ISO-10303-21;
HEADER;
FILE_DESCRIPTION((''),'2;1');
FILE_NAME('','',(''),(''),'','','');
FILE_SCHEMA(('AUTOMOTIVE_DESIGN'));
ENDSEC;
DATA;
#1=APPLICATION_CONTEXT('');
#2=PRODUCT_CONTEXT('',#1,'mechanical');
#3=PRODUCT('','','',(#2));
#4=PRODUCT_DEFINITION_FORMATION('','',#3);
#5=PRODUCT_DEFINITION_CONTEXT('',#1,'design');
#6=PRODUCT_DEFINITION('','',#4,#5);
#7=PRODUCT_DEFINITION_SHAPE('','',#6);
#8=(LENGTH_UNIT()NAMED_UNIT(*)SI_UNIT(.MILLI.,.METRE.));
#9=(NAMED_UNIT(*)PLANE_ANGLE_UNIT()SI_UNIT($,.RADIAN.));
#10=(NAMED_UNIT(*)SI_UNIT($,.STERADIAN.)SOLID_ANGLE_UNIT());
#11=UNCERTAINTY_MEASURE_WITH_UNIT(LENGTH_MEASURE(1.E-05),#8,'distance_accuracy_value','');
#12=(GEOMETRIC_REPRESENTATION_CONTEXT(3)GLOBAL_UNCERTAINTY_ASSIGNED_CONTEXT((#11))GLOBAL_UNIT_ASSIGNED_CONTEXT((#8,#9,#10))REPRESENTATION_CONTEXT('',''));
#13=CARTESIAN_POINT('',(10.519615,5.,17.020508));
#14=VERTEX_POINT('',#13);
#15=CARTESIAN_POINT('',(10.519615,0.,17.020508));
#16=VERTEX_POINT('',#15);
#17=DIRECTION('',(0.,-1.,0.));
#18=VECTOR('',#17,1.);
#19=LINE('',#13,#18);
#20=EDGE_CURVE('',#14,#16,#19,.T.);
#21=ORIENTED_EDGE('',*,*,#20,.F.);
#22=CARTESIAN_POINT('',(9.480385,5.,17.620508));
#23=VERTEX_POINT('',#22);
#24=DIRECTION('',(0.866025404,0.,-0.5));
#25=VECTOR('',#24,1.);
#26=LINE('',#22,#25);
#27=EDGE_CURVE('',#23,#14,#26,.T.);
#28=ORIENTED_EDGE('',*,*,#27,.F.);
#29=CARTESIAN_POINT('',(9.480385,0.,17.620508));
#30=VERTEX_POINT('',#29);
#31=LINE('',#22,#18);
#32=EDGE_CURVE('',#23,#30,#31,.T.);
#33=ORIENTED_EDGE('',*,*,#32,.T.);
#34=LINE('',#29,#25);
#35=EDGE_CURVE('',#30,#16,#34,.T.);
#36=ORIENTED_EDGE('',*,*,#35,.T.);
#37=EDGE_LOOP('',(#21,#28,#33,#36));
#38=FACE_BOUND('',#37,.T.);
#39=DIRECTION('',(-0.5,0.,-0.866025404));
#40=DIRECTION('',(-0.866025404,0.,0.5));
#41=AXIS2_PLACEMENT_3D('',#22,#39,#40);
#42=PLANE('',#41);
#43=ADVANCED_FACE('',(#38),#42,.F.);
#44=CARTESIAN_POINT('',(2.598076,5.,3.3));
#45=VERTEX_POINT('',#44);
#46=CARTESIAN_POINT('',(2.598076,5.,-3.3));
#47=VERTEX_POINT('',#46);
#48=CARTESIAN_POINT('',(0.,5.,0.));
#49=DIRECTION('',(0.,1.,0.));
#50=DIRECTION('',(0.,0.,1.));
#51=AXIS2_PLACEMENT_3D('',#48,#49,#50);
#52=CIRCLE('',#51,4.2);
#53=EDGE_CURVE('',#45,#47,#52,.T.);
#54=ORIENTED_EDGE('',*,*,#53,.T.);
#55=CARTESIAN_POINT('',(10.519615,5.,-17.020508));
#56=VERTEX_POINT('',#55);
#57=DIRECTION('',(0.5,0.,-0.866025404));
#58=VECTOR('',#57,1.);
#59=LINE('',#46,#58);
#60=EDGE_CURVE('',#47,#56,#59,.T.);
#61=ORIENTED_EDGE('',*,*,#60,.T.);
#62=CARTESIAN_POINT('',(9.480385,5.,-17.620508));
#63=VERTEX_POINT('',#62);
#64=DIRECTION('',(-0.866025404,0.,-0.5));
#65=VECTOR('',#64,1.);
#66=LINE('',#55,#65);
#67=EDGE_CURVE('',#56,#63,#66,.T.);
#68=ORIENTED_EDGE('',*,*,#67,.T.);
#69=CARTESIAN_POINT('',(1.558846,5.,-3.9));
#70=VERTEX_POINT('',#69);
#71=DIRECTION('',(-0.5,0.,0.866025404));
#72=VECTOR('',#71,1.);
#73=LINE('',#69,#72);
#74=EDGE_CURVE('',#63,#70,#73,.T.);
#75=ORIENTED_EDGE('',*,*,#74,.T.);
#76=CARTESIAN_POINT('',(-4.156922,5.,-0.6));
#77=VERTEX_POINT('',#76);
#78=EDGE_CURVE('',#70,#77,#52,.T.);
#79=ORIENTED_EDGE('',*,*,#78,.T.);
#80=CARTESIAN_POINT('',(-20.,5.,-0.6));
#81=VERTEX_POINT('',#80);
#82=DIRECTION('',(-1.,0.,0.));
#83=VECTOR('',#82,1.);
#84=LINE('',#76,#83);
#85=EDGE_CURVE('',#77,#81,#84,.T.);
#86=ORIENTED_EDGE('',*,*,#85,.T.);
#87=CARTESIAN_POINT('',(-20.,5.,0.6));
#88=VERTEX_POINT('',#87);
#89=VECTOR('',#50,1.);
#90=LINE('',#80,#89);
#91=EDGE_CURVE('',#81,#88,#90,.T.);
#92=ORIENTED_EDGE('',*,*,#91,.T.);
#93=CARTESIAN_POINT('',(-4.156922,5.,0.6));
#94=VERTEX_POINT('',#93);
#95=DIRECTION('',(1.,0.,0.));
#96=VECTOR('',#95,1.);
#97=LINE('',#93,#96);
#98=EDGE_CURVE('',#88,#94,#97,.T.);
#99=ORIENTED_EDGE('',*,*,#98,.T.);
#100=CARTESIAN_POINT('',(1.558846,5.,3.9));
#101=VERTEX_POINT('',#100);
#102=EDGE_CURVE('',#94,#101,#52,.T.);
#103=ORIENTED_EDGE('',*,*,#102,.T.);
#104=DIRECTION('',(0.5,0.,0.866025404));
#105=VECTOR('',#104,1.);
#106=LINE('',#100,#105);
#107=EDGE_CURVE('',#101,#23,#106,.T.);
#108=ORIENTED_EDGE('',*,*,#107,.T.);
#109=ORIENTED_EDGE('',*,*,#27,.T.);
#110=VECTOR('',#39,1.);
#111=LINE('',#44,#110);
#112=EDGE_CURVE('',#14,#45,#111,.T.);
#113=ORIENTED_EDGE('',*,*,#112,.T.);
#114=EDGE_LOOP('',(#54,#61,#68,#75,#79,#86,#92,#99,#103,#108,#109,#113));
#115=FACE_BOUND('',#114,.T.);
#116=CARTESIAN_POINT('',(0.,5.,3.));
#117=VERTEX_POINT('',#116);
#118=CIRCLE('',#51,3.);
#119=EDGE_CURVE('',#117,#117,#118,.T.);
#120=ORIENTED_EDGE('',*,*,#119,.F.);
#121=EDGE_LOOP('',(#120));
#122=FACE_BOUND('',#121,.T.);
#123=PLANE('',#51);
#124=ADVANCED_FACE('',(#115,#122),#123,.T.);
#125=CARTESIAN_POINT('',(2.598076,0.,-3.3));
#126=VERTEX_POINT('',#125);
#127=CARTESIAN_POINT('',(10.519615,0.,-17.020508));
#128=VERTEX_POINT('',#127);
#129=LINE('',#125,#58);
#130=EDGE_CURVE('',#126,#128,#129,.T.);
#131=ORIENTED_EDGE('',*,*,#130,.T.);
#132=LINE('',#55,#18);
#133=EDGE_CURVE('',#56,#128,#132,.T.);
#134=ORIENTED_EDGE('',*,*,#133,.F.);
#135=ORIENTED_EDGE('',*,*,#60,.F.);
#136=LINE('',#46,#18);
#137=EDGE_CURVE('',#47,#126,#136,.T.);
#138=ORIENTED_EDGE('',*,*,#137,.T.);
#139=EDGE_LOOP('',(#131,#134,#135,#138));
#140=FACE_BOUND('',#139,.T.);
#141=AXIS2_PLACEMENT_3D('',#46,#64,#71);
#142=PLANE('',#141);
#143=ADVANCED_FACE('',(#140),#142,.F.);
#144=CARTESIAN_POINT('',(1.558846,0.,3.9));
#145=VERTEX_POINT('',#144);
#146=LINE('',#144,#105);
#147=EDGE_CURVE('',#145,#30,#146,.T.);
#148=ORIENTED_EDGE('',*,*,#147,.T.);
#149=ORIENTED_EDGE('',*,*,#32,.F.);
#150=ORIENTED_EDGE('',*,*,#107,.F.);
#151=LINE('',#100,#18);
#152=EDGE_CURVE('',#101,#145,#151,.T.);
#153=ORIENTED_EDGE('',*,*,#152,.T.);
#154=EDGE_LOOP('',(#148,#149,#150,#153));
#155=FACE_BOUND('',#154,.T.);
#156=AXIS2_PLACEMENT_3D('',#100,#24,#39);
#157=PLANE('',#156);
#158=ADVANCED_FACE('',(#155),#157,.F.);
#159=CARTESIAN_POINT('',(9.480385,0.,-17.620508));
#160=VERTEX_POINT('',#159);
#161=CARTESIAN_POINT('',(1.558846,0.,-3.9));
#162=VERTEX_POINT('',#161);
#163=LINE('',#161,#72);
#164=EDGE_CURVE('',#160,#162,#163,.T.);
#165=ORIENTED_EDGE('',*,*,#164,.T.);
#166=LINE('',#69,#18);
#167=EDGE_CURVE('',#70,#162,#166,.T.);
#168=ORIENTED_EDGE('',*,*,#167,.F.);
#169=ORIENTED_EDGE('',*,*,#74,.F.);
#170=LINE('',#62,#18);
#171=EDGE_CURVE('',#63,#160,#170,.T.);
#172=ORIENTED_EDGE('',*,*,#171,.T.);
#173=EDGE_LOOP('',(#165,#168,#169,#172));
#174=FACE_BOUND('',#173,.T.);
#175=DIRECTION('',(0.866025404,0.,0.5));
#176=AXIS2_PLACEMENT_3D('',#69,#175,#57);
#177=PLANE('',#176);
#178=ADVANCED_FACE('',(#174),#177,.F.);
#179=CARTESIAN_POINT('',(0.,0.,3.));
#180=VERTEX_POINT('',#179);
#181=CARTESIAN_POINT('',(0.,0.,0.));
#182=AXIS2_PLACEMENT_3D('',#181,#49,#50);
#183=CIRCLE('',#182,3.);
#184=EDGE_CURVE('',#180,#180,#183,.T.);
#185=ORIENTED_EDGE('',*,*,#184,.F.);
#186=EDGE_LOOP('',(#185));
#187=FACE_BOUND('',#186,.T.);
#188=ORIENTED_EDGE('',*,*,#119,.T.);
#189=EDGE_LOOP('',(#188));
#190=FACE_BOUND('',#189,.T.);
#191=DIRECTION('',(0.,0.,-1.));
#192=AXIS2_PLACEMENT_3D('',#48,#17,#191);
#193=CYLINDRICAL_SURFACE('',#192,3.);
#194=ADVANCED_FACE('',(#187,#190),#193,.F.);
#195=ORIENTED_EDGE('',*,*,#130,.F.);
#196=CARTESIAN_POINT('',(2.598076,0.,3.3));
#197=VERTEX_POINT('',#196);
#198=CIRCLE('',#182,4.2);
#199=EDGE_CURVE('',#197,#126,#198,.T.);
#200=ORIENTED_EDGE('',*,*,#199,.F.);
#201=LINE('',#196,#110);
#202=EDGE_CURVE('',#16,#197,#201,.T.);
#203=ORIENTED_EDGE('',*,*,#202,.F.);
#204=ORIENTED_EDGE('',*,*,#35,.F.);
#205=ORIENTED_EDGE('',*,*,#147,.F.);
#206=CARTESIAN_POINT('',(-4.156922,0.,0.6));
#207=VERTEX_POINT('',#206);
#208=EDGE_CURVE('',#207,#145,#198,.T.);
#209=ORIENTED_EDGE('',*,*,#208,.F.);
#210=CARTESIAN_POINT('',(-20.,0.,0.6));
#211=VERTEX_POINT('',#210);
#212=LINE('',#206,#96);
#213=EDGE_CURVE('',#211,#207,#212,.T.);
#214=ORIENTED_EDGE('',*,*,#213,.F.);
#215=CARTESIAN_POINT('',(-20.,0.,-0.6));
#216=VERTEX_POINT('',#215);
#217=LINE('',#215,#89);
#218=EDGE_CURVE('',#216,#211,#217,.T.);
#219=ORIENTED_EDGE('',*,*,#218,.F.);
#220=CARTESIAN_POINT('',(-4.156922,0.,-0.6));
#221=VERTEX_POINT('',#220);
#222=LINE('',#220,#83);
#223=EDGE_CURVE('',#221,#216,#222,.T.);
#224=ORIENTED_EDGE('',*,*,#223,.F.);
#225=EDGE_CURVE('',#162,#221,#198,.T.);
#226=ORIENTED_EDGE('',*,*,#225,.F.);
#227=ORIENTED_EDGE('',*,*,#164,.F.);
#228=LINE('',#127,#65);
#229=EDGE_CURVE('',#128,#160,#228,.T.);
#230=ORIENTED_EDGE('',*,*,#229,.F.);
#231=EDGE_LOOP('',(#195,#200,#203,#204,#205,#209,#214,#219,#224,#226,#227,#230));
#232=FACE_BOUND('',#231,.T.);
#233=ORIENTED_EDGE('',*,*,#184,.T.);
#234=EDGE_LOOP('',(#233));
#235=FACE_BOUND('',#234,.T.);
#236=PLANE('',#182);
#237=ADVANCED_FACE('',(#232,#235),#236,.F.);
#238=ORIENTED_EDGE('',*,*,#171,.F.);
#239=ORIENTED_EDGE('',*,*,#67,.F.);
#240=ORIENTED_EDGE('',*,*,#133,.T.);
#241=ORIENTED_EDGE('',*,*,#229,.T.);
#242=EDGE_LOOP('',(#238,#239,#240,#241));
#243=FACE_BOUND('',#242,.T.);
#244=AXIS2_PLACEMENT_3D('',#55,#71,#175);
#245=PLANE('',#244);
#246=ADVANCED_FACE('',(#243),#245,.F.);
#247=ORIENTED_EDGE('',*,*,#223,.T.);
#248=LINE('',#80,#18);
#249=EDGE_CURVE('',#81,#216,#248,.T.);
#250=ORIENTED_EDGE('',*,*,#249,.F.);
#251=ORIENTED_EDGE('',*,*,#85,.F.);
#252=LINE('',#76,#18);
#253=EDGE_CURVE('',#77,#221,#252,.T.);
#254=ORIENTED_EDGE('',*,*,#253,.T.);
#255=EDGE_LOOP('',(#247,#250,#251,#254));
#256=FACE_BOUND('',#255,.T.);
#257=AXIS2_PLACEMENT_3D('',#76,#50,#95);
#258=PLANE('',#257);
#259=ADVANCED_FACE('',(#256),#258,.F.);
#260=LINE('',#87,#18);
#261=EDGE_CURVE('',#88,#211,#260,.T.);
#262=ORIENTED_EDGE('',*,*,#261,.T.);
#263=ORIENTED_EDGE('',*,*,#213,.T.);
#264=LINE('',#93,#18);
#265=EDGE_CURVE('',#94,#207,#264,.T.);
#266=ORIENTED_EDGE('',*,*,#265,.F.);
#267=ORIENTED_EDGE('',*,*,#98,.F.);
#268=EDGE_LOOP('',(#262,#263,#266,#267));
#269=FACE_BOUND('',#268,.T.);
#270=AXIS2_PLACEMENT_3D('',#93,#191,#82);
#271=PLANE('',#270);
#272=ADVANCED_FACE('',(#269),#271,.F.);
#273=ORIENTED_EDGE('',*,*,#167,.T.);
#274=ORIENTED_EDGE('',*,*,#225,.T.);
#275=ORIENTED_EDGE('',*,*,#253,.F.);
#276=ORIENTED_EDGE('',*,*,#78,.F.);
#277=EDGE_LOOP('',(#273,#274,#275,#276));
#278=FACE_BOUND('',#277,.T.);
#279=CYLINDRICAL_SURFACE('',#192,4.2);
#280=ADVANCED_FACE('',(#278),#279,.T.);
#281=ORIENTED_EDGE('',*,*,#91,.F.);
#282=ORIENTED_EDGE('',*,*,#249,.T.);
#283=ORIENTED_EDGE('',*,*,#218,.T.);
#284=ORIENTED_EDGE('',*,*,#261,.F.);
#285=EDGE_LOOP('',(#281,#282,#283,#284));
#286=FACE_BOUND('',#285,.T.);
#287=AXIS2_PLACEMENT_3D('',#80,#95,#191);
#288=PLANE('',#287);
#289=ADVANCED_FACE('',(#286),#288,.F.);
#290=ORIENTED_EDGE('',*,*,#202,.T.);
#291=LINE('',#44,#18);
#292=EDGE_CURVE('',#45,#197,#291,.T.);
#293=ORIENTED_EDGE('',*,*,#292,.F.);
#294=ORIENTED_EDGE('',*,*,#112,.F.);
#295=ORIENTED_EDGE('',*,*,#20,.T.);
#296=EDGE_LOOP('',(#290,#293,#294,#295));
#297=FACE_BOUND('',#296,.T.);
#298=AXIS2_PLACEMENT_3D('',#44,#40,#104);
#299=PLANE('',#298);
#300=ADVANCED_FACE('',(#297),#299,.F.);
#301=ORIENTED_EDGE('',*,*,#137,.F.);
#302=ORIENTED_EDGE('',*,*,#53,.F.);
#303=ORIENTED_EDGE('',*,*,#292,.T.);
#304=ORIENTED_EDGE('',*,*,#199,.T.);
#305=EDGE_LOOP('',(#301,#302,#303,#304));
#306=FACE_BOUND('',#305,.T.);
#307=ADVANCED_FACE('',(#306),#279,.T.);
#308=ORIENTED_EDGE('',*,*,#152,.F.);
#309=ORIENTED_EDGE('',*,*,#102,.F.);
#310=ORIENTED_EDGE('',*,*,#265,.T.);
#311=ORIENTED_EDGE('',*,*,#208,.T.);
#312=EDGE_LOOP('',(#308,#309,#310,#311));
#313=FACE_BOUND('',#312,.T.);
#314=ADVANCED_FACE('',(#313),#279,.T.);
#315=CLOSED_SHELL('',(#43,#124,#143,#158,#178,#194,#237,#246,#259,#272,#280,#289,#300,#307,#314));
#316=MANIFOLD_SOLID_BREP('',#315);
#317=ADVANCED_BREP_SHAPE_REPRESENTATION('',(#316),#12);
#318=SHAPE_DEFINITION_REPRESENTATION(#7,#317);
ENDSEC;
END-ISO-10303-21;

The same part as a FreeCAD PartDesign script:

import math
import FreeCAD as App
import Part
import Sketcher
from FreeCAD import Vector
Q = App.Units.Quantity

doc = App.newDocument("Part")
body = doc.addObject("PartDesign::Body", "Body")

# Sketch on XZ plane
sketch1 = body.newObject("Sketcher::SketchObject", "Sketch")
sketch1.AttachmentSupport = (doc.getObject("XZ_Plane"), [""])
sketch1.MapMode = "FlatFace"
sketch1.addGeometry(Part.LineSegment(Vector(-20, 0.6, 0), Vector(-4.2, 0.6, 0)), False)
sketch1.addGeometry(Part.ArcOfCircle(Part.Circle(Vector(0, 0, 0), Vector(0, 0, 1), 4.2), math.radians(68), math.radians(172)), False)
sketch1.addGeometry(Part.LineSegment(Vector(1.6, 3.9, 0), Vector(9.5, 17.6, 0)), False)
sketch1.addGeometry(Part.LineSegment(Vector(9.5, 17.6, 0), Vector(10.5, 17, 0)), False)
sketch1.addGeometry(Part.LineSegment(Vector(10.5, 17, 0), Vector(2.6, 3.3, 0)), False)
sketch1.addGeometry(Part.ArcOfCircle(Part.Circle(Vector(0, 0, 0), Vector(0, 0, 1), 4.2), math.radians(-52), math.radians(52)), False)
sketch1.addGeometry(Part.LineSegment(Vector(2.6, -3.3, 0), Vector(10.5, -17, 0)), False)
sketch1.addGeometry(Part.LineSegment(Vector(10.5, -17, 0), Vector(9.5, -17.6, 0)), False)
sketch1.addGeometry(Part.LineSegment(Vector(9.5, -17.6, 0), Vector(1.6, -3.9, 0)), False)
sketch1.addGeometry(Part.ArcOfCircle(Part.Circle(Vector(0, 0, 0), Vector(0, 0, 1), 4.2), math.radians(-172), math.radians(-68)), False)
sketch1.addGeometry(Part.LineSegment(Vector(-4.2, -0.6, 0), Vector(-20, -0.6, 0)), False)
sketch1.addGeometry(Part.LineSegment(Vector(-20, -0.6, 0), Vector(-20, 0.6, 0)), False)
sketch1.addGeometry(Part.Circle(Vector(0, 0, 0), Vector(0, 0, 1), 3), False)
sketch1.addConstraint(Sketcher.Constraint("Coincident", 0, 2, 1, 2))
sketch1.addConstraint(Sketcher.Constraint("Coincident", 1, 1, 2, 1))
sketch1.addConstraint(Sketcher.Constraint("Coincident", 2, 2, 3, 1))
sketch1.addConstraint(Sketcher.Constraint("Coincident", 3, 2, 4, 1))
sketch1.addConstraint(Sketcher.Constraint("Coincident", 4, 2, 5, 2))
sketch1.addConstraint(Sketcher.Constraint("Coincident", 5, 1, 6, 1))
sketch1.addConstraint(Sketcher.Constraint("Coincident", 6, 2, 7, 1))
sketch1.addConstraint(Sketcher.Constraint("Coincident", 7, 2, 8, 1))
sketch1.addConstraint(Sketcher.Constraint("Coincident", 8, 2, 9, 2))
sketch1.addConstraint(Sketcher.Constraint("Coincident", 9, 1, 10, 1))
sketch1.addConstraint(Sketcher.Constraint("Coincident", 10, 2, 11, 1))
sketch1.addConstraint(Sketcher.Constraint("Coincident", 11, 2, 0, 1))
sketch1.addConstraint(Sketcher.Constraint("Horizontal", 0))
sketch1.addConstraint(Sketcher.Constraint("Horizontal", 10))
sketch1.addConstraint(Sketcher.Constraint("Vertical", 11))
sketch1.addConstraint(Sketcher.Constraint("Coincident", 1, 3, -1, 1))
sketch1.addConstraint(Sketcher.Constraint("Coincident", 5, 3, -1, 1))
sketch1.addConstraint(Sketcher.Constraint("Coincident", 9, 3, -1, 1))
sketch1.addConstraint(Sketcher.Constraint("Coincident", 12, 3, -1, 1))
sketch1.addConstraint(Sketcher.Constraint("Equal", 1, 5))
sketch1.addConstraint(Sketcher.Constraint("Equal", 5, 9))
sketch1.addConstraint(Sketcher.Constraint("Symmetric", 3, 2, 6, 2, -1))
sketch1.addConstraint(Sketcher.Constraint("Symmetric", 2, 2, 7, 2, -1))
sketch1.addConstraint(Sketcher.Constraint("Perpendicular", 2, 3))
sketch1.addConstraint(Sketcher.Constraint("Perpendicular", 3, 4))
sketch1.addConstraint(Sketcher.Constraint("Perpendicular", 6, 7))
sketch1.addConstraint(Sketcher.Constraint("Perpendicular", 7, 8))
sketch1.addConstraint(Sketcher.Constraint("Vertical", 0, 2, 9, 1))
sketch1.addConstraint(Sketcher.Constraint("Equal", 2, 4))
sketch1.addConstraint(Sketcher.Constraint("Diameter", 12, 6.0))
sketch1.addConstraint(Sketcher.Constraint("Radius", 1, 4.2))
sketch1.addConstraint(Sketcher.Constraint("Angle", 2, Q("60 deg")))
sketch1.addConstraint(Sketcher.Constraint("DistanceY", 11, 1, 11, 2, 1.2))
sketch1.addConstraint(Sketcher.Constraint("DistanceX", 10, 2, -1, 1, 20.0))
sketch1.addConstraint(Sketcher.Constraint("Distance", 3, 1.2))
sketch1.addConstraint(Sketcher.Constraint("Distance", 2, 15.843078))
pad1 = body.newObject("PartDesign::Pad", "Pad")
pad1.Profile = sketch1
pad1.Length = 5
pad1.Reversed = True

doc.recompute()
